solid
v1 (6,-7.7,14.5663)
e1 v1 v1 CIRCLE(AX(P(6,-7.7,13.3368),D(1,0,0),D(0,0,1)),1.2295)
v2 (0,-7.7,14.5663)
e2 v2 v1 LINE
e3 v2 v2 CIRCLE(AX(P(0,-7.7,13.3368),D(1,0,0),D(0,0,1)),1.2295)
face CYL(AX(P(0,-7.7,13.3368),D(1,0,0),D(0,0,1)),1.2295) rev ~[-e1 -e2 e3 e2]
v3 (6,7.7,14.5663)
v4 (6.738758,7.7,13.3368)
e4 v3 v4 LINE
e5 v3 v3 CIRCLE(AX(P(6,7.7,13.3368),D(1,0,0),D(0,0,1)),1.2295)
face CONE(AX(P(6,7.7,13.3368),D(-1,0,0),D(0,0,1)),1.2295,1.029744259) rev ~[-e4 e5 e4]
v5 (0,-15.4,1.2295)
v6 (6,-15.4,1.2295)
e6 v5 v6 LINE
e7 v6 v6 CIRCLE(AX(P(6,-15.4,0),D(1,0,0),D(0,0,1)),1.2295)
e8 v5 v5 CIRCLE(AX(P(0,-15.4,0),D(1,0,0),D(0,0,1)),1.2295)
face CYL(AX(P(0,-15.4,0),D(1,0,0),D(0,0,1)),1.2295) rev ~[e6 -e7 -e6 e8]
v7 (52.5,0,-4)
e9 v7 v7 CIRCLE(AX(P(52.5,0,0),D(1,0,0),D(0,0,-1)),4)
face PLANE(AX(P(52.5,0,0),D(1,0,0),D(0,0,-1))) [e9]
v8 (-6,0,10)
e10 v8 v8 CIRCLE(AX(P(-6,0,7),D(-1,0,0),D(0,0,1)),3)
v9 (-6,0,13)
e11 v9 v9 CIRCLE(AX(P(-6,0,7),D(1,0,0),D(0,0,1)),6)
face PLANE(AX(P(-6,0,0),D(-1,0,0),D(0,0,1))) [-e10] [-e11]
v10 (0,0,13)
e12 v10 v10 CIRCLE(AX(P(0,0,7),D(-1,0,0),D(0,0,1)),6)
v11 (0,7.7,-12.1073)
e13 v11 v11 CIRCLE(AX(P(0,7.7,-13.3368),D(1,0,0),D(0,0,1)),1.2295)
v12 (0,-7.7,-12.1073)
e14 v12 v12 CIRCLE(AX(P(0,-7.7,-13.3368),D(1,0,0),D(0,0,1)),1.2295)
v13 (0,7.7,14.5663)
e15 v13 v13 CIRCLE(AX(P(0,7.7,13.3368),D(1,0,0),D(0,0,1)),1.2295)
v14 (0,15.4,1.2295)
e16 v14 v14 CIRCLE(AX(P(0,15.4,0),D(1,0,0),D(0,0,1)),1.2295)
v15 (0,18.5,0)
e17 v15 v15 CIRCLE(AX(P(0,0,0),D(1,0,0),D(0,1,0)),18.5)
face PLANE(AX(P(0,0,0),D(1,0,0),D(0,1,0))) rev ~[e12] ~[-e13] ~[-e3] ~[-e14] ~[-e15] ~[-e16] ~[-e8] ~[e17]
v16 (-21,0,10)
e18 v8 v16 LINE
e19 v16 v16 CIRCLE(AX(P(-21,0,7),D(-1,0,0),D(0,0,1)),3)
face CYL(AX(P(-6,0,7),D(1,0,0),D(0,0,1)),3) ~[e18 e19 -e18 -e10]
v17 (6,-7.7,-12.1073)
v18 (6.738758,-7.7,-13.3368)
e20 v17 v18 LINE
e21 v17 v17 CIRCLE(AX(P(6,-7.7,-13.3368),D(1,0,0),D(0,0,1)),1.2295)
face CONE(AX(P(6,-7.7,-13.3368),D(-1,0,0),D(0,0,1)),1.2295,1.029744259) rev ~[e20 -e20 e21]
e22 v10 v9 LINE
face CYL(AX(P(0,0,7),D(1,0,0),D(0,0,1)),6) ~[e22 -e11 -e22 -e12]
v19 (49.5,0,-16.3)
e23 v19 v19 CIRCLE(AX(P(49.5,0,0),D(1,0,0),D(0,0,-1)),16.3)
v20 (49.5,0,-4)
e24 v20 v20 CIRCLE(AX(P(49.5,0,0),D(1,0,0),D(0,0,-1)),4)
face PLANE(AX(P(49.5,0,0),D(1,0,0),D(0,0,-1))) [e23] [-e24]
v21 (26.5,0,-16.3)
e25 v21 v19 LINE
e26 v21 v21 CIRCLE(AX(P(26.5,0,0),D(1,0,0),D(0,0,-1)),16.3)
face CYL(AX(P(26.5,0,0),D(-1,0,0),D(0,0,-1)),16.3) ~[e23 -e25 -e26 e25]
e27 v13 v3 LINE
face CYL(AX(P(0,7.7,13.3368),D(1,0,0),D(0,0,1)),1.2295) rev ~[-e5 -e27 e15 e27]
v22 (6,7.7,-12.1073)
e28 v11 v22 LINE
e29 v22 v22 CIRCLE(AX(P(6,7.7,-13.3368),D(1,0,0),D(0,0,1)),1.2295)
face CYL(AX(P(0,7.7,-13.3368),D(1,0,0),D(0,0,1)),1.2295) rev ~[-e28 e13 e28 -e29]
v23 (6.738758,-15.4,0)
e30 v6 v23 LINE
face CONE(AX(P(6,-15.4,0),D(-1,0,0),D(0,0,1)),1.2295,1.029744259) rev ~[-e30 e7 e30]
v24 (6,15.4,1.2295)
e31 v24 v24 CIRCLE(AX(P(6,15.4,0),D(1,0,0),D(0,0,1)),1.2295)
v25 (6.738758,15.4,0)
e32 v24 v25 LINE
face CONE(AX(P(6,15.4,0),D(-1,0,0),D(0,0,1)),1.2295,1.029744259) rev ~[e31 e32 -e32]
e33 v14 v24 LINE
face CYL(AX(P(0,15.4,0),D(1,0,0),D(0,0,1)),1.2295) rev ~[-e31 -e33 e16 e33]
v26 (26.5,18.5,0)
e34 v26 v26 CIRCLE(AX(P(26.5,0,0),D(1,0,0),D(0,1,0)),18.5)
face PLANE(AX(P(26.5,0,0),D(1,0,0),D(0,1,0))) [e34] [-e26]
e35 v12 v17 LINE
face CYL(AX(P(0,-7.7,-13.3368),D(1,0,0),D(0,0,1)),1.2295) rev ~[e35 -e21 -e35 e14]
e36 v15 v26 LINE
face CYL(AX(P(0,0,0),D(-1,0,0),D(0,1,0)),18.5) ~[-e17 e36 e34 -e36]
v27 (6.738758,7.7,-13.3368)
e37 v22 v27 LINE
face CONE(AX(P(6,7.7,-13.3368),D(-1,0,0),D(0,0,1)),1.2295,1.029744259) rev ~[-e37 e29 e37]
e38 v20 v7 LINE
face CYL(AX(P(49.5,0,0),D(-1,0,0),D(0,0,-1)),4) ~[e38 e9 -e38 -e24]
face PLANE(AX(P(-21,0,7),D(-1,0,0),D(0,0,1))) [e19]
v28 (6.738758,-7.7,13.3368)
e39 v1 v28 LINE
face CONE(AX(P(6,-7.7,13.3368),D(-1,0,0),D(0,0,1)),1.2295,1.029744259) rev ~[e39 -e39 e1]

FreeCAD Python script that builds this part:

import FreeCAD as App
import Part
import Sketcher

V = App.Vector

doc = App.newDocument("Part")
body = doc.addObject("PartDesign::Body", "Body")

sketch1 = doc.addObject("Sketcher::SketchObject", "Sketch")
body.addObject(sketch1)
sketch1.AttachmentSupport = (doc.YZ_Plane, [""])
sketch1.MapMode = "FlatFace"
sketch1.addGeometry(Part.Circle(V(0, 0, 0), V(0, 0, 1), 18), False)
sketch1.addConstraint([
    Sketcher.Constraint("Coincident", 0, 3, -1, 1),
    Sketcher.Constraint("Diameter", 0, 37.0),
])
pad1 = doc.addObject("PartDesign::Pad", "Pad")
body.addObject(pad1)
pad1.Profile = sketch1
pad1.Length = 26.5

sketch2 = doc.addObject("Sketcher::SketchObject", "Sketch001")
body.addObject(sketch2)
sketch2.AttachmentSupport = (doc.YZ_Plane, [""])
sketch2.MapMode = "FlatFace"
sketch2.AttachmentOffset = App.Placement(V(0, 0, 26.5), App.Rotation())
sketch2.addGeometry(Part.Circle(V(0, 0, 0), V(0, 0, 1), 16), False)
sketch2.addConstraint([
    Sketcher.Constraint("Coincident", 0, 3, -1, 1),
    Sketcher.Constraint("Diameter", 0, 32.6),
])
pad2 = doc.addObject("PartDesign::Pad", "Pad001")
body.addObject(pad2)
pad2.Profile = sketch2
pad2.Length = 23

sketch3 = doc.addObject("Sketcher::SketchObject", "Sketch002")
body.addObject(sketch3)
sketch3.AttachmentSupport = (doc.YZ_Plane, [""])
sketch3.MapMode = "FlatFace"
sketch3.AttachmentOffset = App.Placement(V(0, 0, 49.5), App.Rotation())
sketch3.addGeometry(Part.Circle(V(0, 0, 0), V(0, 0, 1), 4), False)
sketch3.addConstraint([
    Sketcher.Constraint("Coincident", 0, 3, -1, 1),
    Sketcher.Constraint("Diameter", 0, 8.0),
])
pad3 = doc.addObject("PartDesign::Pad", "Pad002")
body.addObject(pad3)
pad3.Profile = sketch3
pad3.Length = 3

sketch4 = doc.addObject("Sketcher::SketchObject", "Sketch003")
body.addObject(sketch4)
sketch4.AttachmentSupport = (doc.YZ_Plane, [""])
sketch4.MapMode = "FlatFace"
sketch4.addGeometry(Part.Circle(V(0, 7, 0), V(0, 0, 1), 6), False)
sketch4.addConstraint([
    Sketcher.Constraint("PointOnObject", 0, 3, -2),
    Sketcher.Constraint("Diameter", 0, 12.0),
    Sketcher.Constraint("DistanceY", -1, 1, 0, 3, 7.0),
])
pad4 = doc.addObject("PartDesign::Pad", "Pad003")
body.addObject(pad4)
pad4.Profile = sketch4
pad4.Length = 6
pad4.Reversed = True

sketch5 = doc.addObject("Sketcher::SketchObject", "Sketch004")
body.addObject(sketch5)
sketch5.AttachmentSupport = (doc.YZ_Plane, [""])
sketch5.MapMode = "FlatFace"
sketch5.AttachmentOffset = App.Placement(V(0, 0, -6), App.Rotation())
sketch5.addGeometry(Part.Circle(V(0, 7, 0), V(0, 0, 1), 3), False)
sketch5.addConstraint([
    Sketcher.Constraint("PointOnObject", 0, 3, -2),
    Sketcher.Constraint("Diameter", 0, 6.0),
    Sketcher.Constraint("DistanceY", -1, 1, 0, 3, 7.0),
])
pad5 = doc.addObject("PartDesign::Pad", "Pad004")
body.addObject(pad5)
pad5.Profile = sketch5
pad5.Length = 15
pad5.Reversed = True

sketch6 = doc.addObject("Sketcher::SketchObject", "Sketch005")
body.addObject(sketch6)
sketch6.AttachmentSupport = (doc.YZ_Plane, [""])
sketch6.MapMode = "FlatFace"
sketch6.addGeometry([
    Part.Circle(V(15.4, 0, 0), V(0, 0, 1), 1.2),
    Part.Circle(V(7.7, -13.3, 0), V(0, 0, 1), 1.2),
    Part.Circle(V(-7.7, -13.3, 0), V(0, 0, 1), 1.2),
    Part.Circle(V(-15.4, 0, 0), V(0, 0, 1), 1.2),
    Part.Circle(V(-7.7, 13.3, 0), V(0, 0, 1), 1.2),
    Part.Circle(V(7.7, 13.3, 0), V(0, 0, 1), 1.2),
], False)
sketch6.addConstraint([
    Sketcher.Constraint("Equal", 0, 1),
    Sketcher.Constraint("Equal", 1, 2),
    Sketcher.Constraint("Equal", 2, 3),
    Sketcher.Constraint("Equal", 3, 4),
    Sketcher.Constraint("Equal", 4, 5),
    Sketcher.Constraint("Symmetric", 0, 3, 3, 3, -1, 1),
    Sketcher.Constraint("Symmetric", 1, 3, 4, 3, -1, 1),
    Sketcher.Constraint("Symmetric", 2, 3, 5, 3, -1, 1),
    Sketcher.Constraint("Symmetric", 1, 3, 2, 3, -2),
    Sketcher.Constraint("PointOnObject", 0, 3, -1),
    Sketcher.Constraint("Diameter", 0, 2.459),
    Sketcher.Constraint("DistanceX", -1, 1, 0, 3, 15.4),
    Sketcher.Constraint("DistanceX", -1, 1, 1, 3, 7.7),
    Sketcher.Constraint("DistanceY", 1, 3, -1, 1, 13.3368),
])
doc.recompute()
hole = doc.addObject("PartDesign::Hole", "Hole")
body.addObject(hole)
hole.Profile = sketch6
hole.ThreadType = "None"
hole.Diameter = 2.459
hole.DepthType = "Dimension"
hole.Depth = 6
hole.DrillPoint = "Angled"
hole.DrillPointAngle = 118
hole.Reversed = True

doc.recompute()
